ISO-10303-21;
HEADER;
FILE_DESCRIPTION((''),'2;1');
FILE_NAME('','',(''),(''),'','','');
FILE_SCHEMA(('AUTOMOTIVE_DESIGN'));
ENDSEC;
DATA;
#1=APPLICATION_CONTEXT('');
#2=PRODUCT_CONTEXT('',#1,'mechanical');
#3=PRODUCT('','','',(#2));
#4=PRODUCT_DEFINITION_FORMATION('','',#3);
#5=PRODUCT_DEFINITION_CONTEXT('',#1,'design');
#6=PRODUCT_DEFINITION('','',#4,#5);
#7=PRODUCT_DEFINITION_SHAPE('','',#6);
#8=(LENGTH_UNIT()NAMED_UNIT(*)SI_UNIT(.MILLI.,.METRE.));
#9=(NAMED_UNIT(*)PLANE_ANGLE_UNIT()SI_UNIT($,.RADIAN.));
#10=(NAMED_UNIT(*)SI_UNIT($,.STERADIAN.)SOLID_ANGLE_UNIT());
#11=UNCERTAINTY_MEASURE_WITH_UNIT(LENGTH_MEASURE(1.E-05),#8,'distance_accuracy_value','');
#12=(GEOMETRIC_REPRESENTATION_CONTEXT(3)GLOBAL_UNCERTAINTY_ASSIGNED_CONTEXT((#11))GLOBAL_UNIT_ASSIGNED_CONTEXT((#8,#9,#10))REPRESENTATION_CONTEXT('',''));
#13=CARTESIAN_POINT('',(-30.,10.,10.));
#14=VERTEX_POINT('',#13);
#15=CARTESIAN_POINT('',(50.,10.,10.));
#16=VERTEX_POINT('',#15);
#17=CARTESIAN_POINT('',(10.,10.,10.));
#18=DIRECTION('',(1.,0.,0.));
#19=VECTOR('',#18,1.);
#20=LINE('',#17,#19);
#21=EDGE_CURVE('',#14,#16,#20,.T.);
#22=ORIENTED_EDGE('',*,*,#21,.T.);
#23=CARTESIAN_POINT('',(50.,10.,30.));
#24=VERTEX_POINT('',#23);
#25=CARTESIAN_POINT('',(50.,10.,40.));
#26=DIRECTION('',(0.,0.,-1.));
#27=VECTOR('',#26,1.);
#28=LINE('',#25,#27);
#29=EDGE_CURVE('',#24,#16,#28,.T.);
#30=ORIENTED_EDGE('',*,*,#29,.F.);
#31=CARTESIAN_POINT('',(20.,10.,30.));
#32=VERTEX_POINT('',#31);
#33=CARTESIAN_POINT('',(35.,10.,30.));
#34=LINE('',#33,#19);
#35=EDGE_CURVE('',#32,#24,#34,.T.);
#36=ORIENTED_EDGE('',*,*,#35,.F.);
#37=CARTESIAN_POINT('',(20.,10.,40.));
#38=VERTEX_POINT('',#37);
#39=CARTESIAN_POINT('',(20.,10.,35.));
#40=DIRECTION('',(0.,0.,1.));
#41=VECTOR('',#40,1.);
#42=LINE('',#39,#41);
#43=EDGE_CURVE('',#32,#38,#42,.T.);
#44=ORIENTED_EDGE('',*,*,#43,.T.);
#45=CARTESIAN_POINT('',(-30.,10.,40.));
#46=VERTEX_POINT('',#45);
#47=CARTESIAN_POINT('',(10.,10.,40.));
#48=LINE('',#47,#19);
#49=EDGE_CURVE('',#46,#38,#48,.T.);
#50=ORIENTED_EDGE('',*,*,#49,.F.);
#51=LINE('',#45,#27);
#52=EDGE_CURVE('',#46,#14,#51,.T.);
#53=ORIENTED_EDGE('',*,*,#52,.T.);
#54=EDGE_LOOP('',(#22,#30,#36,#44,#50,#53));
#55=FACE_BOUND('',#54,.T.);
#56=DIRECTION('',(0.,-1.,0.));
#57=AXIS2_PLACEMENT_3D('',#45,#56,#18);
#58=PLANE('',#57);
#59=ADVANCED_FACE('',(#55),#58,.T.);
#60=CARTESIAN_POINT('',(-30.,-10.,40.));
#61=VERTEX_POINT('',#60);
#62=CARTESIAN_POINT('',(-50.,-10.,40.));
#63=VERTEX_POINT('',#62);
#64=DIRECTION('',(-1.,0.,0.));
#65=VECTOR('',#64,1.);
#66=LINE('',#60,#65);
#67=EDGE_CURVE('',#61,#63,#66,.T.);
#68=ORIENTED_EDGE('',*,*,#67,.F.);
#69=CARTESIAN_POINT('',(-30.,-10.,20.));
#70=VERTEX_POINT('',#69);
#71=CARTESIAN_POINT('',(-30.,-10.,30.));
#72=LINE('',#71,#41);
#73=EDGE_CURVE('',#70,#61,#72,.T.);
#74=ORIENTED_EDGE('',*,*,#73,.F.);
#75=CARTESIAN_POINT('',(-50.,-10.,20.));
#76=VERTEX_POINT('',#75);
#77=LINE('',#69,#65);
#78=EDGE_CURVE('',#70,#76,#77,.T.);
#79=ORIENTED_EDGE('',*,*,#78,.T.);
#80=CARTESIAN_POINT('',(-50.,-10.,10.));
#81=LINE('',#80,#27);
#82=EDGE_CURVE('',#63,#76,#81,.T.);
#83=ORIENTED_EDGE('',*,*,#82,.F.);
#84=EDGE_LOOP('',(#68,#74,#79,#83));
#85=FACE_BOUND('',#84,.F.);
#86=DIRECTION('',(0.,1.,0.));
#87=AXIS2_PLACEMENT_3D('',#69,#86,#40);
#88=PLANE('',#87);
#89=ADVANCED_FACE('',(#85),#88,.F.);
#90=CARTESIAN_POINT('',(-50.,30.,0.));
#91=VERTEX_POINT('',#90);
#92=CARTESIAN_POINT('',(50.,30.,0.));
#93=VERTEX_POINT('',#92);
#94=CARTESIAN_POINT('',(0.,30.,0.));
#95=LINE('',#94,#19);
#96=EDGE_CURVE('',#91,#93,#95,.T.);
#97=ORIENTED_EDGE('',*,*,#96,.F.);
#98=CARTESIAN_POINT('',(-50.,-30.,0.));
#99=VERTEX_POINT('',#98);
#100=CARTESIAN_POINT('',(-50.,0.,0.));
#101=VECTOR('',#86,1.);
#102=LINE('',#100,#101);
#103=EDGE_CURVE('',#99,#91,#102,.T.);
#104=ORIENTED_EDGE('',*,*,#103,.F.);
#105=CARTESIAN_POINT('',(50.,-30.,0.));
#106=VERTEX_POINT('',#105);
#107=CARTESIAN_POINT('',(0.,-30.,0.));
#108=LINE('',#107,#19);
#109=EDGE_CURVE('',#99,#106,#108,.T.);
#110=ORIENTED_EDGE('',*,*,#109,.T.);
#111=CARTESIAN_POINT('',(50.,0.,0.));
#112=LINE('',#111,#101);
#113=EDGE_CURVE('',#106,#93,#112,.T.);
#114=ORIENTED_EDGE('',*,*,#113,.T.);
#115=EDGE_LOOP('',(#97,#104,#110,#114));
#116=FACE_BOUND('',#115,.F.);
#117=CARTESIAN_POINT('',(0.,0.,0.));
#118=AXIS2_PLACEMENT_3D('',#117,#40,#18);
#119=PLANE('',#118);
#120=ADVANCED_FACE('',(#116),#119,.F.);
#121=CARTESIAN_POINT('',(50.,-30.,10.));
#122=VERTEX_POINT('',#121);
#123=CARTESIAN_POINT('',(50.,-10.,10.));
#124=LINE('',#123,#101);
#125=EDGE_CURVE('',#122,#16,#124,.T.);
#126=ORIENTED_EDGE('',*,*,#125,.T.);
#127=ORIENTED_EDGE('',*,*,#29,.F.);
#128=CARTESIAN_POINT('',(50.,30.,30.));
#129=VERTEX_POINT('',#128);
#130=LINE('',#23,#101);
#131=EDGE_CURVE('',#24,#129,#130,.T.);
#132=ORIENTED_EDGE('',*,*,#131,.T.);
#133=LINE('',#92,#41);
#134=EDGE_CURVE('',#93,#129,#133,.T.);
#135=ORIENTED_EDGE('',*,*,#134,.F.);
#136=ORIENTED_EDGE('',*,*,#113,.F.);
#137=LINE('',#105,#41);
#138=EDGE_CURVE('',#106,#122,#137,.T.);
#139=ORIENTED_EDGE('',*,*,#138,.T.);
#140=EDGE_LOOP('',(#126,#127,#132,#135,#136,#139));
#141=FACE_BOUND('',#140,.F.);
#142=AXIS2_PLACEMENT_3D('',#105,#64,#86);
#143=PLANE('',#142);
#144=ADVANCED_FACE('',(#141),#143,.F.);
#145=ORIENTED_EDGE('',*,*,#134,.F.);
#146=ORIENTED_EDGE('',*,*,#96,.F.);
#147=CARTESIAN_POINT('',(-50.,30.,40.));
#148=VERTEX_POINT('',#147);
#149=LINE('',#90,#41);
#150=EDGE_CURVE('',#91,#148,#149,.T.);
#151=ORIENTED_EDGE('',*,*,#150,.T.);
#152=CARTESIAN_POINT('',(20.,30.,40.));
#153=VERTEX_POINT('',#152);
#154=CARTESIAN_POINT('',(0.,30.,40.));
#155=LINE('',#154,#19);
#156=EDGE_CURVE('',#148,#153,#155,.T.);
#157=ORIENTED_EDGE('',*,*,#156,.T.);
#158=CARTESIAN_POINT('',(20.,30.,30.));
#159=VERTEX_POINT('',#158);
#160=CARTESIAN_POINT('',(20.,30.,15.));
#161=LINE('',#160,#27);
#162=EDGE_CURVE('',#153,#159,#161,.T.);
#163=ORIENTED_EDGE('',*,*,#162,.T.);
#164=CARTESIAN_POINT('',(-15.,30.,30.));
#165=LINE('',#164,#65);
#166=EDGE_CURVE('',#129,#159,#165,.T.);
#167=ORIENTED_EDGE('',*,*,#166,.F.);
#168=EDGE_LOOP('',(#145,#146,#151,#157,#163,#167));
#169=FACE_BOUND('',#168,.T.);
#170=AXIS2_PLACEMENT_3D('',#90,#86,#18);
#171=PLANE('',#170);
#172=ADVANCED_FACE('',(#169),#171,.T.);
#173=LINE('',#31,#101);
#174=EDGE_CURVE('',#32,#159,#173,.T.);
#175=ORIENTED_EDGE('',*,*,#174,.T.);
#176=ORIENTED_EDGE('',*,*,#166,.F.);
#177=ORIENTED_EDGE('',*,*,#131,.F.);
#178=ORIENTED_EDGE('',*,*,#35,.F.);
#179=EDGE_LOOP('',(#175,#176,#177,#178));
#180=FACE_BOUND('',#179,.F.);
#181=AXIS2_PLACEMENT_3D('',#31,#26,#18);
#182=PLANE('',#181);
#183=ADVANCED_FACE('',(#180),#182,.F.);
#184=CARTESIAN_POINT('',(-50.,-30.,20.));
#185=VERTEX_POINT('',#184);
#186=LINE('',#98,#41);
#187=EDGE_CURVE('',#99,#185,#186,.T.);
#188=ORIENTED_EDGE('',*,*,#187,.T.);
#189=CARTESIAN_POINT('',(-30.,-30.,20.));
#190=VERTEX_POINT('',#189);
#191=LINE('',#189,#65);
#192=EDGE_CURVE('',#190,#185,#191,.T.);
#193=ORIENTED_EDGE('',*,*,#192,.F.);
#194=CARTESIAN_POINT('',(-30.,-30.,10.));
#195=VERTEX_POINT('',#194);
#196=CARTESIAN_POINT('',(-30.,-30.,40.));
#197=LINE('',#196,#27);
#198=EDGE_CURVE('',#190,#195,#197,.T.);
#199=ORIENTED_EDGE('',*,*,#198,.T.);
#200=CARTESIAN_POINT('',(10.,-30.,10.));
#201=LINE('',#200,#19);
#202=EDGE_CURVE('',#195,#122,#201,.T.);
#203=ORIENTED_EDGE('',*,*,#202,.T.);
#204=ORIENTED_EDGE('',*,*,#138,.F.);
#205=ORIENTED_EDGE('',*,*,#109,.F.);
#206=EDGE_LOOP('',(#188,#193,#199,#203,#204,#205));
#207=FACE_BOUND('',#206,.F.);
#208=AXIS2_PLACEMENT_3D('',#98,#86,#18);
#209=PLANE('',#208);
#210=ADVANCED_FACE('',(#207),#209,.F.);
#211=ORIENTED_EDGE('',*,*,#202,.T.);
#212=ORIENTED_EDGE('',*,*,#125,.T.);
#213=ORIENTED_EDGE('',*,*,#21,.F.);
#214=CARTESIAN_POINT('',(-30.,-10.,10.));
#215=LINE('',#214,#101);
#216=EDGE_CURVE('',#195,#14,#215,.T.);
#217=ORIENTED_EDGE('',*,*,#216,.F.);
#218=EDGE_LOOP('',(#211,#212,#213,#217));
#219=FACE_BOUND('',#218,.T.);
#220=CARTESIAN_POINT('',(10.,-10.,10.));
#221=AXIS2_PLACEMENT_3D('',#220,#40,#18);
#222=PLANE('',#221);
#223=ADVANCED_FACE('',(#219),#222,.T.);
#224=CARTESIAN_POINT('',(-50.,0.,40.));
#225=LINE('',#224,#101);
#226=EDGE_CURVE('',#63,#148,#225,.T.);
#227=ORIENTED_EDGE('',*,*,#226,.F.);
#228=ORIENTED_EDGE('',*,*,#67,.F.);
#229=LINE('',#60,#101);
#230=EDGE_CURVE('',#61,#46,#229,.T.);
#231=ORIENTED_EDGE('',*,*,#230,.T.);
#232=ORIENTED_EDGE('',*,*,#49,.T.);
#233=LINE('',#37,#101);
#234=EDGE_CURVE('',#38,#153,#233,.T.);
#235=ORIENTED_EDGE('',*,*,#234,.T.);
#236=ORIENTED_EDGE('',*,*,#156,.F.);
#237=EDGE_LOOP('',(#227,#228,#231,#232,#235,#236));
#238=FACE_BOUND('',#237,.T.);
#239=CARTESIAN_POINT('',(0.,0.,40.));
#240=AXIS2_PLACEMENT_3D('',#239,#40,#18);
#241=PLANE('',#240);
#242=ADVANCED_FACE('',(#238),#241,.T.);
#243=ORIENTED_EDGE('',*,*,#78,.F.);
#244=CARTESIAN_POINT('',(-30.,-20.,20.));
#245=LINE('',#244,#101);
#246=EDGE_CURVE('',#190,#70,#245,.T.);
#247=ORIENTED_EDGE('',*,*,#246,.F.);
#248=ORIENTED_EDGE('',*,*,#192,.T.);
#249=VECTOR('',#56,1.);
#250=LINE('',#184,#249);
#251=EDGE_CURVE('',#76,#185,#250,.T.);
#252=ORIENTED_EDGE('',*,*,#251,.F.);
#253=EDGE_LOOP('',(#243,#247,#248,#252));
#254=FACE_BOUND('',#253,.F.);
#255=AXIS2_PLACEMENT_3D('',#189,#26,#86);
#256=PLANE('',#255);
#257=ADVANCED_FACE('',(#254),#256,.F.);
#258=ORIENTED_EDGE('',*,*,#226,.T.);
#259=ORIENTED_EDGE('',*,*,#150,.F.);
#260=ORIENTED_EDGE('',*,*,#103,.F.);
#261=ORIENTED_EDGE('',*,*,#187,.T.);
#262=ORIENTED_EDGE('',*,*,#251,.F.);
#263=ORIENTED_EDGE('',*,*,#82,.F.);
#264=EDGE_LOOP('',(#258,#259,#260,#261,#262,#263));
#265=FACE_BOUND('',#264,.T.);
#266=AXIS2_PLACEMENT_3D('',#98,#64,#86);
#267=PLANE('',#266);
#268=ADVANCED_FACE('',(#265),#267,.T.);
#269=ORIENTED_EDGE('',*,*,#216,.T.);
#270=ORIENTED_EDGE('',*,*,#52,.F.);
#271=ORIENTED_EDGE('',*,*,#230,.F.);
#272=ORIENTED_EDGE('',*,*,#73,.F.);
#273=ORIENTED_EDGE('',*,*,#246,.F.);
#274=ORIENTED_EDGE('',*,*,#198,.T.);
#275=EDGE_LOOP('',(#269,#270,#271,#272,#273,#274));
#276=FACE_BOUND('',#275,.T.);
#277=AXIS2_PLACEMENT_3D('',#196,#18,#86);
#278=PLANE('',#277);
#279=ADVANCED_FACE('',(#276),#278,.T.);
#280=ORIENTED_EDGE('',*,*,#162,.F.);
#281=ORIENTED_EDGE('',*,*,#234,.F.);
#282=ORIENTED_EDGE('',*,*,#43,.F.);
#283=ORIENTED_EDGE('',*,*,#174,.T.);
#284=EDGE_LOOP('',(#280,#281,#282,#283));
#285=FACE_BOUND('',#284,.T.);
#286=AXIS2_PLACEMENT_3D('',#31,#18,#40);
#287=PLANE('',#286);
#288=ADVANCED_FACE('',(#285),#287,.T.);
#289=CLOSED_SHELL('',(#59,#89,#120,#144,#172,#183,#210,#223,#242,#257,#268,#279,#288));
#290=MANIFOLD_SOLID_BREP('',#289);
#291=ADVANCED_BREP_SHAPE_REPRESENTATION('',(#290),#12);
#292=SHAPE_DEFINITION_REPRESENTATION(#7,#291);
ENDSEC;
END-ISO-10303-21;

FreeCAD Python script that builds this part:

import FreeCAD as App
import Part
import Sketcher

V = App.Vector
Q = App.Units.Quantity

doc = App.newDocument("Part")
params = doc.addObject("Spreadsheet::Sheet", "Params")
for row, (alias, value) in enumerate([
    ("sketch1_width", "100 mm"),
    ("sketch1_height", "60 mm"),
    ("pad1_length", "40 mm"),
    ("sketch2_width", "80 mm"),
    ("sketch2_height", "40 mm"),
    ("pocket1_length", "30 mm"),
    ("sketch3_width", "30 mm"),
    ("sketch3_height", "10 mm"),
    ("sketch4_width", "20 mm"),
], start=1):
    params.set(f"A{row}", alias)
    params.set(f"B{row}", "=" + value)
    params.setAlias(f"B{row}", alias)

body = doc.addObject("PartDesign::Body", "Body")

sketch1 = body.newObject("Sketcher::SketchObject", "Sketch")
sketch1.AttachmentSupport = (doc.getObject("XY_Plane"), [""])
sketch1.MapMode = "FlatFace"
sketch1.addGeometry(Part.LineSegment(V(-50, 30, 0), V(-50, -30, 0)), False)
sketch1.addGeometry(Part.LineSegment(V(-50, -30, 0), V(50, -30, 0)), False)
sketch1.addGeometry(Part.LineSegment(V(50, -30, 0), V(50, 30, 0)), False)
sketch1.addGeometry(Part.LineSegment(V(50, 30, 0), V(-50, 30, 0)), False)
sketch1.addConstraint(Sketcher.Constraint("Coincident", 0, 2, 1, 1))
sketch1.addConstraint(Sketcher.Constraint("Coincident", 1, 2, 2, 1))
sketch1.addConstraint(Sketcher.Constraint("Coincident", 2, 2, 3, 1))
sketch1.addConstraint(Sketcher.Constraint("Coincident", 3, 2, 0, 1))
sketch1.addConstraint(Sketcher.Constraint("Vertical", 0))
sketch1.addConstraint(Sketcher.Constraint("Horizontal", 1))
sketch1.addConstraint(Sketcher.Constraint("Vertical", 2))
sketch1.addConstraint(Sketcher.Constraint("Horizontal", 3))
sketch1.addConstraint(Sketcher.Constraint("Symmetric", 0, 2, 2, 2, -1, 1))
sketch1.addConstraint(Sketcher.Constraint("DistanceX", 1, 1, 1, 2, Q("100 mm")))
sketch1.addConstraint(Sketcher.Constraint("DistanceY", 0, 2, 0, 1, Q("60 mm")))
sketch1.setExpression("Constraints[9]", "Params.sketch1_width")
sketch1.setExpression("Constraints[10]", "Params.sketch1_height")
pad1 = body.newObject("PartDesign::Pad", "Pad")
pad1.Profile = sketch1
pad1.setExpression("Length", "Params.pad1_length")

sketch2 = body.newObject("Sketcher::SketchObject", "Sketch001")
sketch2.AttachmentSupport = (doc.getObject("XY_Plane"), [""])
sketch2.MapMode = "FlatFace"
sketch2.AttachmentOffset = App.Placement(V(0, 0, 40), App.Rotation())
sketch2.addGeometry(Part.LineSegment(V(-30, 10, 0), V(-30, -30, 0)), False)
sketch2.addGeometry(Part.LineSegment(V(-30, -30, 0), V(50, -30, 0)), False)
sketch2.addGeometry(Part.LineSegment(V(50, -30, 0), V(50, 10, 0)), False)
sketch2.addGeometry(Part.LineSegment(V(50, 10, 0), V(-30, 10, 0)), False)
sketch2.addConstraint(Sketcher.Constraint("Coincident", 0, 2, 1, 1))
sketch2.addConstraint(Sketcher.Constraint("Coincident", 1, 2, 2, 1))
sketch2.addConstraint(Sketcher.Constraint("Coincident", 2, 2, 3, 1))
sketch2.addConstraint(Sketcher.Constraint("Coincident", 3, 2, 0, 1))
sketch2.addConstraint(Sketcher.Constraint("Vertical", 0))
sketch2.addConstraint(Sketcher.Constraint("Horizontal", 1))
sketch2.addConstraint(Sketcher.Constraint("Vertical", 2))
sketch2.addConstraint(Sketcher.Constraint("Horizontal", 3))
sketch2.addConstraint(Sketcher.Constraint("DistanceX", 1, 1, 1, 2, Q("80 mm")))
sketch2.addConstraint(Sketcher.Constraint("DistanceY", 0, 2, 0, 1, Q("40 mm")))
sketch2.addConstraint(Sketcher.Constraint("DistanceX", 0, 2, -1, 1, Q("30 mm")))
sketch2.addConstraint(Sketcher.Constraint("DistanceY", 0, 2, -1, 1, Q("30 mm")))
sketch2.setExpression("Constraints[8]", "Params.sketch2_width")
sketch2.setExpression("Constraints[9]", "Params.sketch2_height")
pocket1 = body.newObject("PartDesign::Pocket", "Pocket")
pocket1.Profile = sketch2
pocket1.setExpression("Length", "Params.pocket1_length")

sketch3 = body.newObject("Sketcher::SketchObject", "Sketch002")
sketch3.AttachmentSupport = (doc.getObject("XZ_Plane"), [""])
sketch3.MapMode = "FlatFace"
sketch3.AttachmentOffset = App.Placement(V(0, 0, -10), App.Rotation())
sketch3.addGeometry(Part.LineSegment(V(20, 40, 0), V(20, 30, 0)), False)
sketch3.addGeometry(Part.LineSegment(V(20, 30, 0), V(50, 30, 0)), False)
sketch3.addGeometry(Part.LineSegment(V(50, 30, 0), V(50, 40, 0)), False)
sketch3.addGeometry(Part.LineSegment(V(50, 40, 0), V(20, 40, 0)), False)
sketch3.addConstraint(Sketcher.Constraint("Coincident", 0, 2, 1, 1))
sketch3.addConstraint(Sketcher.Constraint("Coincident", 1, 2, 2, 1))
sketch3.addConstraint(Sketcher.Constraint("Coincident", 2, 2, 3, 1))
sketch3.addConstraint(Sketcher.Constraint("Coincident", 3, 2, 0, 1))
sketch3.addConstraint(Sketcher.Constraint("Vertical", 0))
sketch3.addConstraint(Sketcher.Constraint("Horizontal", 1))
sketch3.addConstraint(Sketcher.Constraint("Vertical", 2))
sketch3.addConstraint(Sketcher.Constraint("Horizontal", 3))
sketch3.addConstraint(Sketcher.Constraint("DistanceX", 1, 1, 1, 2, Q("30 mm")))
sketch3.addConstraint(Sketcher.Constraint("DistanceY", 0, 2, 0, 1, Q("10 mm")))
sketch3.addConstraint(Sketcher.Constraint("DistanceX", -1, 1, 0, 2, Q("20 mm")))
sketch3.addConstraint(Sketcher.Constraint("DistanceY", -1, 1, 0, 2, Q("30 mm")))
sketch3.setExpression("Constraints[8]", "Params.sketch3_width")
sketch3.setExpression("Constraints[9]", "Params.sketch3_height")
pocket2 = body.newObject("PartDesign::Pocket", "Pocket001")
pocket2.Profile = sketch3
pocket2.Type = "ThroughAll"

sketch4 = body.newObject("Sketcher::SketchObject", "Sketch003")
sketch4.AttachmentSupport = (doc.getObject("YZ_Plane"), [""])
sketch4.MapMode = "FlatFace"
sketch4.AttachmentOffset = App.Placement(V(0, 0, -30), App.Rotation())
sketch4.addGeometry(Part.LineSegment(V(-30, 40, 0), V(-30, 20, 0)), False)
sketch4.addGeometry(Part.LineSegment(V(-30, 20, 0), V(-10, 20, 0)), False)
sketch4.addGeometry(Part.LineSegment(V(-10, 20, 0), V(-10, 40, 0)), False)
sketch4.addGeometry(Part.LineSegment(V(-10, 40, 0), V(-30, 40, 0)), False)
sketch4.addConstraint(Sketcher.Constraint("Coincident", 0, 2, 1, 1))
sketch4.addConstraint(Sketcher.Constraint("Coincident", 1, 2, 2, 1))
sketch4.addConstraint(Sketcher.Constraint("Coincident", 2, 2, 3, 1))
sketch4.addConstraint(Sketcher.Constraint("Coincident", 3, 2, 0, 1))
sketch4.addConstraint(Sketcher.Constraint("Vertical", 0))
sketch4.addConstraint(Sketcher.Constraint("Horizontal", 1))
sketch4.addConstraint(Sketcher.Constraint("Vertical", 2))
sketch4.addConstraint(Sketcher.Constraint("Horizontal", 3))
sketch4.addConstraint(Sketcher.Constraint("Equal", 3, 0))
sketch4.addConstraint(Sketcher.Constraint("DistanceX", 1, 1, 1, 2, Q("20 mm")))
sketch4.addConstraint(Sketcher.Constraint("DistanceX", 0, 2, -1, 1, Q("30 mm")))
sketch4.addConstraint(Sketcher.Constraint("DistanceY", -1, 1, 0, 2, Q("20 mm")))
sketch4.setExpression("Constraints[9]", "Params.sketch4_width")
pocket3 = body.newObject("PartDesign::Pocket", "Pocket002")
pocket3.Profile = sketch4
pocket3.Type = "ThroughAll"

doc.recompute()
